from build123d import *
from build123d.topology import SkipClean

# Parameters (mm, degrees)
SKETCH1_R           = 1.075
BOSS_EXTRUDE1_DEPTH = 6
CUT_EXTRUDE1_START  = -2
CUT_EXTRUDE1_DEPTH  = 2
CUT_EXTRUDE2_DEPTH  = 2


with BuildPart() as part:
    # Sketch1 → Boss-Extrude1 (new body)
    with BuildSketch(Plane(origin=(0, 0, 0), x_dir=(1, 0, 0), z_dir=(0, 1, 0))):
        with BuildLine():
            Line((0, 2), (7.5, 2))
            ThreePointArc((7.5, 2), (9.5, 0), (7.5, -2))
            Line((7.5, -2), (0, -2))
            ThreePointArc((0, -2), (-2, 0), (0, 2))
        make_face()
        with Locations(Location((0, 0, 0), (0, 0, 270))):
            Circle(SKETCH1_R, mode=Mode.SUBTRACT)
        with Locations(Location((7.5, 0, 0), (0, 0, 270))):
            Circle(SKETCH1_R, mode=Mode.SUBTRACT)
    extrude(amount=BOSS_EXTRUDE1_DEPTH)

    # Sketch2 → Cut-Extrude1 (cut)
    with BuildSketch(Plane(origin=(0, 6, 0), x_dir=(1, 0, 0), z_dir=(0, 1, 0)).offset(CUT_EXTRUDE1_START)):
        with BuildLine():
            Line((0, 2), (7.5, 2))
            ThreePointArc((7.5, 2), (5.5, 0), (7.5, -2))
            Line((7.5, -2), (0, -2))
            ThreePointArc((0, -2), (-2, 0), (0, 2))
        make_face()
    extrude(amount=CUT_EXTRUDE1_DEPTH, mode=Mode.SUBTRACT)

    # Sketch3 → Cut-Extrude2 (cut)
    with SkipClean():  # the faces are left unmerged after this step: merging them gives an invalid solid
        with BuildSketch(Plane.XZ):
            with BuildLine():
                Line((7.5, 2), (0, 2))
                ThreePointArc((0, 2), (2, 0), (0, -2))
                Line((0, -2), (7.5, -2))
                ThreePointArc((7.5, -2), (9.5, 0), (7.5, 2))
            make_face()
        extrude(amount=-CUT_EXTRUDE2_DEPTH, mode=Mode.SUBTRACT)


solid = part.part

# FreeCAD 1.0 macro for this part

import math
import FreeCAD as App
import Part
import Sketcher

doc = App.newDocument("Part")
body = doc.addObject("PartDesign::Body", "Body")

# Sketch on XZ plane
sketch1 = doc.addObject("Sketcher::SketchObject", "Sketch")
body.addObject(sketch1)
sketch1.AttachmentSupport = (doc.XZ_Plane, [""])
sketch1.MapMode = "FlatFace"
sketch1.addGeometry([
    Part.LineSegment(App.Vector(7.5, -2, 0), App.Vector(0, -2, 0)),  # 0
    Part.ArcOfCircle(Part.Circle(App.Vector(0, 0, 0), App.Vector(0, 0, 1), 2), math.radians(90), math.radians(270)),  # 1
    Part.LineSegment(App.Vector(0, 2, 0), App.Vector(7.5, 2, 0)),  # 2
    Part.ArcOfCircle(Part.Circle(App.Vector(7.5, 0, 0), App.Vector(0, 0, 1), 2), math.radians(-90), math.radians(90)),  # 3
    Part.Circle(App.Vector(7.5, 0, 0), App.Vector(0, 0, 1), 1.1),  # 4
    Part.Circle(App.Vector(0, 0, 0), App.Vector(0, 0, 1), 1.1),  # 5
], False)
sketch1.addConstraint([
    Sketcher.Constraint("Tangent", 0, 2, 1, 2),
    Sketcher.Constraint("Tangent", 1, 1, 2, 1),
    Sketcher.Constraint("Tangent", 2, 2, 3, 2),
    Sketcher.Constraint("Tangent", 3, 1, 0, 1),
    Sketcher.Constraint("Horizontal", 0),
    Sketcher.Constraint("Horizontal", 2),
    Sketcher.Constraint("Coincident", 1, 3, -1, 1),
    Sketcher.Constraint("Coincident", 5, 3, -1, 1),
    Sketcher.Constraint("Coincident", 4, 3, 3, 3),
    Sketcher.Constraint("Equal", 4, 5),
    Sketcher.Constraint("Radius", 1, 2.0),
    Sketcher.Constraint("Diameter", 4, 2.15),
    Sketcher.Constraint("DistanceX", 0, 2, 0, 1, 7.5),
])
pad1 = doc.addObject("PartDesign::Pad", "Pad")
body.addObject(pad1)
pad1.Profile = sketch1
pad1.Length = 6
pad1.Reversed = True

# Sketch on XZ plane
sketch2 = doc.addObject("Sketcher::SketchObject", "Sketch001")
body.addObject(sketch2)
sketch2.AttachmentSupport = (doc.XZ_Plane, [""])
sketch2.MapMode = "FlatFace"
sketch2.AttachmentOffset = App.Placement(App.Vector(0, 0, -4), App.Rotation())
sketch2.addGeometry([
    Part.LineSegment(App.Vector(7.5, -2, 0), App.Vector(0, -2, 0)),
    Part.ArcOfCircle(Part.Circle(App.Vector(0, 0, 0), App.Vector(0, 0, 1), 2), math.radians(90), math.radians(270)),
    Part.LineSegment(App.Vector(0, 2, 0), App.Vector(7.5, 2, 0)),
    Part.ArcOfCircle(Part.Circle(App.Vector(7.5, 0, 0), App.Vector(0, 0, 1), 2), math.radians(90), math.radians(270)),
], False)
sketch2.addConstraint([
    Sketcher.Constraint("Tangent", 0, 2, 1, 2),
    Sketcher.Constraint("Tangent", 1, 1, 2, 1),
    Sketcher.Constraint("Tangent", 2, 2, 3, 1),
    Sketcher.Constraint("Tangent", 3, 2, 0, 1),
    Sketcher.Constraint("Horizontal", 0),
    Sketcher.Constraint("Horizontal", 2),
    Sketcher.Constraint("Coincident", 1, 3, -1, 1),
    Sketcher.Constraint("Radius", 1, 2.0),
    Sketcher.Constraint("DistanceX", 0, 2, 0, 1, 7.5),
])
pocket1 = doc.addObject("PartDesign::Pocket", "Pocket")
body.addObject(pocket1)
pocket1.Profile = sketch2
pocket1.Length = 2

# Sketch on XZ plane
sketch3 = doc.addObject("Sketcher::SketchObject", "Sketch002")
body.addObject(sketch3)
sketch3.AttachmentSupport = (doc.XZ_Plane, [""])
sketch3.MapMode = "FlatFace"
sketch3.addGeometry([
    Part.LineSegment(App.Vector(7.5, 2, 0), App.Vector(0, 2, 0)),
    Part.ArcOfCircle(Part.Circle(App.Vector(0, 0, 0), App.Vector(0, 0, 1), 2), math.radians(-90), math.radians(90)),
    Part.LineSegment(App.Vector(0, -2, 0), App.Vector(7.5, -2, 0)),
    Part.ArcOfCircle(Part.Circle(App.Vector(7.5, 0, 0), App.Vector(0, 0, 1), 2), math.radians(-90), math.radians(90)),
], False)
sketch3.addConstraint([
    Sketcher.Constraint("Tangent", 0, 2, 1, 2),
    Sketcher.Constraint("Tangent", 1, 1, 2, 1),
    Sketcher.Constraint("Tangent", 2, 2, 3, 1),
    Sketcher.Constraint("Tangent", 3, 2, 0, 1),
    Sketcher.Constraint("Horizontal", 0),
    Sketcher.Constraint("Horizontal", 2),
    Sketcher.Constraint("Coincident", 1, 3, -1, 1),
    Sketcher.Constraint("Radius", 1, 2.0),
    Sketcher.Constraint("DistanceX", 0, 2, 0, 1, 7.5),
])
pocket2 = doc.addObject("PartDesign::Pocket", "Pocket001")
body.addObject(pocket2)
pocket2.Profile = sketch3
pocket2.Length = 2

doc.recompute()
